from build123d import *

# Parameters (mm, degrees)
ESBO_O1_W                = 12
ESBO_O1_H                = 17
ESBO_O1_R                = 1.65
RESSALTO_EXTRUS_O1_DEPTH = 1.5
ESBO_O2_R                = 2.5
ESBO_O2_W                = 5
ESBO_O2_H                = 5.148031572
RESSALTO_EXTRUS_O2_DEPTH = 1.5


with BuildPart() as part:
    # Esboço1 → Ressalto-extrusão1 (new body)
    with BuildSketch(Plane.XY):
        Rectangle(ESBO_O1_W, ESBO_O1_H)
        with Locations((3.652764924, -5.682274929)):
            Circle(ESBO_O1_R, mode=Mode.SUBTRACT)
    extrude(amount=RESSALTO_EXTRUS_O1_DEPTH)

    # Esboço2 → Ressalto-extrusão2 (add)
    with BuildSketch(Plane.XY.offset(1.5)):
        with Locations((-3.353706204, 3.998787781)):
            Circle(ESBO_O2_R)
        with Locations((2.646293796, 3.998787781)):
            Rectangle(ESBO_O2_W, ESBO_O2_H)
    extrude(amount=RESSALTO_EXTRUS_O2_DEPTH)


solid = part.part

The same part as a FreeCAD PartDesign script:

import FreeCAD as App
import Part
import Sketcher
from FreeCAD import Vector
Q = App.Units.Quantity


def add_polygon(sketch, points):
    """Adds a closed chain of lines whose ends are joined by coincident constraints."""
    first, n = sketch.GeometryCount, len(points)
    for a, b in zip(points, points[1:] + points[:1]):
        sketch.addGeometry(Part.LineSegment(App.Vector(*a, 0), App.Vector(*b, 0)), False)
    for i in range(n):
        sketch.addConstraint(Sketcher.Constraint("Coincident", first + i, 2, first + (i + 1) % n, 1))

doc = App.newDocument("Part")
body = doc.addObject("PartDesign::Body", "Body")

sketch1 = body.newObject("Sketcher::SketchObject", "Sketch")
sketch1.AttachmentSupport = (doc.getObject("XY_Plane"), [""])
sketch1.MapMode = "FlatFace"
add_polygon(sketch1, [(-6, 8.5), (-6, -8.5), (6, -8.5), (6, 8.5)])
sketch1.addGeometry(Part.Circle(Vector(3.7, -5.7, 0), Vector(0, 0, 1), 1.6), False)
sketch1.addConstraint([
    Sketcher.Constraint("Vertical", 0),
    Sketcher.Constraint("Horizontal", 1),
    Sketcher.Constraint("Vertical", 2),
    Sketcher.Constraint("Horizontal", 3),
    Sketcher.Constraint("Symmetric", 0, 2, 2, 2, -1, 1),
    Sketcher.Constraint("Diameter", 4, Q("3.3 mm")),
    Sketcher.Constraint("DistanceX", 1, 1, 1, 2, Q("12 mm")),
    Sketcher.Constraint("DistanceY", 0, 2, 0, 1, Q("17 mm")),
    Sketcher.Constraint("DistanceX", -1, 1, 4, 3, Q("3.652765 mm")),
    Sketcher.Constraint("DistanceY", 4, 3, -1, 1, Q("5.682275 mm")),
])
pad1 = body.newObject("PartDesign::Pad", "Pad")
pad1.Profile = sketch1
pad1.Length = 1.5

sketch2 = body.newObject("Sketcher::SketchObject", "Sketch001")
sketch2.AttachmentSupport = (doc.getObject("XY_Plane"), [""])
sketch2.MapMode = "FlatFace"
sketch2.AttachmentOffset = App.Placement(Vector(0, 0, 1.5), App.Rotation())
sketch2.addGeometry(Part.Circle(Vector(-3.4, 4, 0), Vector(0, 0, 1), 2.5), False)
add_polygon(sketch2, [(0.1, 6.6), (0.1, 1.4), (5.1, 1.4), (5.1, 6.6)])
sketch2.addConstraint([
    Sketcher.Constraint("Vertical", 1),
    Sketcher.Constraint("Horizontal", 2),
    Sketcher.Constraint("Vertical", 3),
    Sketcher.Constraint("Horizontal", 4),
    Sketcher.Constraint("Diameter", 0, Q("5 mm")),
    Sketcher.Constraint("DistanceX", 2, 1, 2, 2, Q("5 mm")),
    Sketcher.Constraint("DistanceX", 0, 3, 1, 2, Q("3.5 mm")),
    Sketcher.Constraint("DistanceY", 1, 2, 1, 1, Q("5.148032 mm")),
    Sketcher.Constraint("DistanceY", -1, 1, 1, 2, Q("1.424772 mm")),
    Sketcher.Constraint("DistanceX", 0, 3, -1, 1, Q("3.353706 mm")),
    Sketcher.Constraint("DistanceY", -1, 1, 0, 3, Q("3.998788 mm")),
])
pad2 = body.newObject("PartDesign::Pad", "Pad001")
pad2.Profile = sketch2
pad2.Length = 1.5

doc.recompute()
